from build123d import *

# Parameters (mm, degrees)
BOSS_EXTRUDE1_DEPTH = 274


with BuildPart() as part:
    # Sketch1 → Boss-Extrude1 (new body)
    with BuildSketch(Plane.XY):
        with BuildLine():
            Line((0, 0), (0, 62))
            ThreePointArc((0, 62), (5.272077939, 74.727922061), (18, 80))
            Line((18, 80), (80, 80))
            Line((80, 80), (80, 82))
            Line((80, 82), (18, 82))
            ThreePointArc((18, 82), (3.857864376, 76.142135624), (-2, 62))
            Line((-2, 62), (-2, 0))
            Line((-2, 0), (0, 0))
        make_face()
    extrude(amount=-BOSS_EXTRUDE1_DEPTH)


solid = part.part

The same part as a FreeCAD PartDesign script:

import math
import FreeCAD as App
import Part
import Sketcher
Q = App.Units.Quantity

doc = App.newDocument("Part")
params = doc.addObject("Spreadsheet::Sheet", "Params")
for row, (alias, value) in enumerate([
    ("sketch1_radius", "18 mm"),
    ("sketch1_radius2", "20 mm"),
    ("sketch1_width", "62 mm"),
    ("pad1_length", "274 mm"),
], start=1):
    params.set(f"A{row}", alias)
    params.set(f"B{row}", "=" + value)
    params.setAlias(f"B{row}", alias)

body = doc.addObject("PartDesign::Body", "Body")

# Sketch on XY plane
sketch1 = body.newObject("Sketcher::SketchObject", "Sketch")
sketch1.AttachmentSupport = (doc.getObject("XY_Plane"), [""])
sketch1.MapMode = "FlatFace"
sketch1.addGeometry([
    Part.LineSegment(App.Vector(0, 0, 0), App.Vector(0, 62, 0)),  # 0
    Part.ArcOfCircle(Part.Circle(App.Vector(18, 62, 0), App.Vector(0, 0, 1), 18), math.radians(90), math.radians(180)),  # 1
    Part.LineSegment(App.Vector(18, 80, 0), App.Vector(80, 80, 0)),  # 2
    Part.LineSegment(App.Vector(80, 80, 0), App.Vector(80, 82, 0)),  # 3
    Part.LineSegment(App.Vector(80, 82, 0), App.Vector(18, 82, 0)),  # 4
    Part.ArcOfCircle(Part.Circle(App.Vector(18, 62, 0), App.Vector(0, 0, 1), 20), math.radians(90), math.radians(180)),  # 5
    Part.LineSegment(App.Vector(-2, 62, 0), App.Vector(-2, 0, 0)),  # 6
    Part.LineSegment(App.Vector(-2, 0, 0), App.Vector(0, 0, 0)),  # 7
], False)
sketch1.addConstraint([
    Sketcher.Constraint("Tangent", 0, 2, 1, 2),
    Sketcher.Constraint("Tangent", 1, 1, 2, 1),
    Sketcher.Constraint("Coincident", 2, 2, 3, 1),
    Sketcher.Constraint("Coincident", 3, 2, 4, 1),
    Sketcher.Constraint("Tangent", 4, 2, 5, 1),
    Sketcher.Constraint("Tangent", 5, 2, 6, 1),
    Sketcher.Constraint("Coincident", 6, 2, 7, 1),
    Sketcher.Constraint("Coincident", 7, 2, 0, 1),
    Sketcher.Constraint("Vertical", 0),
    Sketcher.Constraint("Horizontal", 2),
    Sketcher.Constraint("Vertical", 3),
    Sketcher.Constraint("Horizontal", 4),
    Sketcher.Constraint("Vertical", 6),
    Sketcher.Constraint("Horizontal", 7),
    Sketcher.Constraint("Coincident", 7, 2, -1, 1),
    Sketcher.Constraint("Coincident", 5, 3, 1, 3),
    Sketcher.Constraint("Equal", 4, 0),
    Sketcher.Constraint("Radius", 1, Q("18 mm")),
    Sketcher.Constraint("Radius", 5, Q("20 mm")),
    Sketcher.Constraint("DistanceX", 2, 1, 2, 2, Q("62 mm")),
])
sketch1.setExpression("Constraints[17]", "Params.sketch1_radius")
sketch1.setExpression("Constraints[18]", "Params.sketch1_radius2")
sketch1.setExpression("Constraints[19]", "Params.sketch1_width")
pad1 = body.newObject("PartDesign::Pad", "Pad")
pad1.Profile = sketch1
pad1.setExpression("Length", "Params.pad1_length")
pad1.Reversed = True

doc.recompute()
